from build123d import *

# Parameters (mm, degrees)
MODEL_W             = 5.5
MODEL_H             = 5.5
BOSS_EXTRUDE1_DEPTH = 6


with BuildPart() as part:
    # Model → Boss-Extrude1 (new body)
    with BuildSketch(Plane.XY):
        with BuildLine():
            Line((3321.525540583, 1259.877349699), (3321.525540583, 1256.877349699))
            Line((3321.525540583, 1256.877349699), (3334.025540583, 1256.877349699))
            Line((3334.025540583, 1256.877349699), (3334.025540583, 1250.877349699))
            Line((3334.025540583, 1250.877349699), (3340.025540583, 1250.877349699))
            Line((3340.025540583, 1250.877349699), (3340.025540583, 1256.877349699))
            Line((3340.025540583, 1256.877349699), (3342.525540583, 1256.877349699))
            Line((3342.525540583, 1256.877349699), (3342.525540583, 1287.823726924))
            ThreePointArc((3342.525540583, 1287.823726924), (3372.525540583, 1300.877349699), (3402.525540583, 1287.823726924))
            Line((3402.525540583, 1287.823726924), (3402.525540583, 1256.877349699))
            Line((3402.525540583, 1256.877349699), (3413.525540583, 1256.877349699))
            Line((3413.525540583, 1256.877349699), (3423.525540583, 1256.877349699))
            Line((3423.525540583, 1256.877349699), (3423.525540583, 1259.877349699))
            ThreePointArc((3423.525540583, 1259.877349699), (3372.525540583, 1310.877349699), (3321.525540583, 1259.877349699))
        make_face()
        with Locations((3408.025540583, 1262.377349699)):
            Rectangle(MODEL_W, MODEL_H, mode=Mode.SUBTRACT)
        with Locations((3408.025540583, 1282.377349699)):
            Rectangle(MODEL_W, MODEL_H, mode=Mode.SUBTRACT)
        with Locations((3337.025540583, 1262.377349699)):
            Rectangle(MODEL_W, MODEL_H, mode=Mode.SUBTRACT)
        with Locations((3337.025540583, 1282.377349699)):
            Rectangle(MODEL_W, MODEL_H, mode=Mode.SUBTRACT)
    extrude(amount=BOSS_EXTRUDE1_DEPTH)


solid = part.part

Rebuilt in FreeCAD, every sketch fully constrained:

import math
import FreeCAD as App
import Part
import Sketcher

V = App.Vector
Q = App.Units.Quantity

doc = App.newDocument("Part")
body = doc.addObject("PartDesign::Body", "Body")

sketch1 = doc.addObject("Sketcher::SketchObject", "Sketch")
body.addObject(sketch1)
sketch1.AttachmentSupport = (doc.XY_Plane, [""])
sketch1.MapMode = "FlatFace"
sketch1.addGeometry([
    Part.LineSegment(V(3321.5, 1259.9, 0), V(3321.5, 1256.9, 0)),
    Part.LineSegment(V(3321.5, 1256.9, 0), V(3334, 1256.9, 0)),
    Part.LineSegment(V(3334, 1256.9, 0), V(3334, 1250.9, 0)),
    Part.LineSegment(V(3334, 1250.9, 0), V(3340, 1250.9, 0)),
    Part.LineSegment(V(3340, 1250.9, 0), V(3340, 1256.9, 0)),
    Part.LineSegment(V(3340, 1256.9, 0), V(3342.5, 1256.9, 0)),
    Part.LineSegment(V(3342.5, 1256.9, 0), V(3342.5, 1287.8, 0)),
    Part.ArcOfCircle(Part.Circle(V(3372.5, 1259.9, 0), V(0, 0, 1), 41), math.radians(43), math.radians(137)),
    Part.LineSegment(V(3402.5, 1287.8, 0), V(3402.5, 1256.9, 0)),
    Part.LineSegment(V(3402.5, 1256.9, 0), V(3423.5, 1256.9, 0)),
    Part.LineSegment(V(3423.5, 1256.9, 0), V(3423.5, 1259.9, 0)),
    Part.ArcOfCircle(Part.Circle(V(3372.5, 1259.9, 0), V(0, 0, 1), 51), math.radians(0), math.radians(180)),
    Part.LineSegment(V(3339.8, 1259.6, 0), V(3334.3, 1259.6, 0)),
    Part.LineSegment(V(3334.3, 1259.6, 0), V(3334.3, 1265.1, 0)),
    Part.LineSegment(V(3334.3, 1265.1, 0), V(3339.8, 1265.1, 0)),
    Part.LineSegment(V(3339.8, 1265.1, 0), V(3339.8, 1259.6, 0)),
    Part.LineSegment(V(3410.8, 1259.6, 0), V(3405.3, 1259.6, 0)),
    Part.LineSegment(V(3405.3, 1259.6, 0), V(3405.3, 1265.1, 0)),
    Part.LineSegment(V(3405.3, 1265.1, 0), V(3410.8, 1265.1, 0)),
    Part.LineSegment(V(3410.8, 1265.1, 0), V(3410.8, 1259.6, 0)),
    Part.LineSegment(V(3339.8, 1279.6, 0), V(3334.3, 1279.6, 0)),
    Part.LineSegment(V(3334.3, 1279.6, 0), V(3334.3, 1285.1, 0)),
    Part.LineSegment(V(3334.3, 1285.1, 0), V(3339.8, 1285.1, 0)),
    Part.LineSegment(V(3339.8, 1285.1, 0), V(3339.8, 1279.6, 0)),
    Part.LineSegment(V(3410.8, 1279.6, 0), V(3405.3, 1279.6, 0)),
    Part.LineSegment(V(3405.3, 1279.6, 0), V(3405.3, 1285.1, 0)),
    Part.LineSegment(V(3405.3, 1285.1, 0), V(3410.8, 1285.1, 0)),
    Part.LineSegment(V(3410.8, 1285.1, 0), V(3410.8, 1279.6, 0)),
], False)
sketch1.addConstraint([
    Sketcher.Constraint("Coincident", 0, 2, 1, 1),
    Sketcher.Constraint("Coincident", 1, 2, 2, 1),
    Sketcher.Constraint("Coincident", 2, 2, 3, 1),
    Sketcher.Constraint("Coincident", 3, 2, 4, 1),
    Sketcher.Constraint("Coincident", 4, 2, 5, 1),
    Sketcher.Constraint("Coincident", 5, 2, 6, 1),
    Sketcher.Constraint("Coincident", 6, 2, 7, 2),
    Sketcher.Constraint("Coincident", 7, 1, 8, 1),
    Sketcher.Constraint("Coincident", 8, 2, 9, 1),
    Sketcher.Constraint("Coincident", 9, 2, 10, 1),
    Sketcher.Constraint("Tangent", 10, 2, 11, 1),
    Sketcher.Constraint("Tangent", 11, 2, 0, 1),
    Sketcher.Constraint("Coincident", 12, 2, 13, 1),
    Sketcher.Constraint("Coincident", 13, 2, 14, 1),
    Sketcher.Constraint("Coincident", 14, 2, 15, 1),
    Sketcher.Constraint("Coincident", 15, 2, 12, 1),
    Sketcher.Constraint("Coincident", 16, 2, 17, 1),
    Sketcher.Constraint("Coincident", 17, 2, 18, 1),
    Sketcher.Constraint("Coincident", 18, 2, 19, 1),
    Sketcher.Constraint("Coincident", 19, 2, 16, 1),
    Sketcher.Constraint("Coincident", 20, 2, 21, 1),
    Sketcher.Constraint("Coincident", 21, 2, 22, 1),
    Sketcher.Constraint("Coincident", 22, 2, 23, 1),
    Sketcher.Constraint("Coincident", 23, 2, 20, 1),
    Sketcher.Constraint("Coincident", 24, 2, 25, 1),
    Sketcher.Constraint("Coincident", 25, 2, 26, 1),
    Sketcher.Constraint("Coincident", 26, 2, 27, 1),
    Sketcher.Constraint("Coincident", 27, 2, 24, 1),
    Sketcher.Constraint("Vertical", 0),
    Sketcher.Constraint("Horizontal", 1),
    Sketcher.Constraint("Vertical", 2),
    Sketcher.Constraint("Horizontal", 3),
    Sketcher.Constraint("Vertical", 4),
    Sketcher.Constraint("Horizontal", 5),
    Sketcher.Constraint("Vertical", 6),
    Sketcher.Constraint("Vertical", 8),
    Sketcher.Constraint("Horizontal", 9),
    Sketcher.Constraint("Vertical", 10),
    Sketcher.Constraint("Horizontal", 12),
    Sketcher.Constraint("Vertical", 13),
    Sketcher.Constraint("Horizontal", 14),
    Sketcher.Constraint("Vertical", 15),
    Sketcher.Constraint("Horizontal", 16),
    Sketcher.Constraint("Vertical", 17),
    Sketcher.Constraint("Horizontal", 18),
    Sketcher.Constraint("Vertical", 19),
    Sketcher.Constraint("Horizontal", 20),
    Sketcher.Constraint("Vertical", 21),
    Sketcher.Constraint("Horizontal", 22),
    Sketcher.Constraint("Vertical", 23),
    Sketcher.Constraint("Horizontal", 24),
    Sketcher.Constraint("Vertical", 25),
    Sketcher.Constraint("Horizontal", 26),
    Sketcher.Constraint("Vertical", 27),
    Sketcher.Constraint("Coincident", 11, 3, 7, 3),
    Sketcher.Constraint("Horizontal", 1, 2, 4, 2),
    Sketcher.Constraint("Horizontal", 6, 2, 7, 1),
    Sketcher.Constraint("Horizontal", 5, 2, 8, 2),
    Sketcher.Constraint("Horizontal", 15, 2, 16, 2),
    Sketcher.Constraint("Horizontal", 14, 2, 17, 2),
    Sketcher.Constraint("Horizontal", 23, 2, 24, 2),
    Sketcher.Constraint("Horizontal", 22, 2, 25, 2),
    Sketcher.Constraint("Vertical", 13, 2, 20, 2),
    Sketcher.Constraint("Vertical", 15, 2, 22, 2),
    Sketcher.Constraint("Vertical", 17, 2, 24, 2),
    Sketcher.Constraint("Vertical", 19, 2, 26, 2),
    Sketcher.Constraint("Equal", 14, 16),
    Sketcher.Constraint("Equal", 3, 2),
    Sketcher.Constraint("Equal", 26, 13),
    Sketcher.Constraint("Equal", 19, 21),
    Sketcher.Constraint("Radius", 7, Q("41 mm")),
    Sketcher.Constraint("Radius", 11, Q("51 mm")),
    Sketcher.Constraint("DistanceX", 3, 1, 3, 2, Q("6 mm")),
    Sketcher.Constraint("DistanceX", 9, 1, 9, 2, Q("21 mm")),
    Sketcher.Constraint("DistanceY", 0, 2, 0, 1, Q("3 mm")),
    Sketcher.Constraint("DistanceX", 1, 1, 1, 2, Q("12.5 mm")),
    Sketcher.Constraint("DistanceX", 12, 2, 12, 1, Q("5.5 mm")),
    Sketcher.Constraint("DistanceY", 12, 2, 20, 2, Q("20 mm")),
    Sketcher.Constraint("DistanceX", 1, 2, 12, 2, Q("0.25 mm")),
    Sketcher.Constraint("DistanceY", 1, 2, 12, 2, Q("2.75 mm")),
    Sketcher.Constraint("DistanceX", 8, 2, 16, 2, Q("2.75 mm")),
    Sketcher.Constraint("DistanceX", -1, 1, 7, 3, Q("3372.525541 mm")),
    Sketcher.Constraint("DistanceY", -1, 1, 7, 3, Q("1259.87735 mm")),
])
pad1 = doc.addObject("PartDesign::Pad", "Pad")
body.addObject(pad1)
pad1.Profile = sketch1
pad1.Length = 6

doc.recompute()
